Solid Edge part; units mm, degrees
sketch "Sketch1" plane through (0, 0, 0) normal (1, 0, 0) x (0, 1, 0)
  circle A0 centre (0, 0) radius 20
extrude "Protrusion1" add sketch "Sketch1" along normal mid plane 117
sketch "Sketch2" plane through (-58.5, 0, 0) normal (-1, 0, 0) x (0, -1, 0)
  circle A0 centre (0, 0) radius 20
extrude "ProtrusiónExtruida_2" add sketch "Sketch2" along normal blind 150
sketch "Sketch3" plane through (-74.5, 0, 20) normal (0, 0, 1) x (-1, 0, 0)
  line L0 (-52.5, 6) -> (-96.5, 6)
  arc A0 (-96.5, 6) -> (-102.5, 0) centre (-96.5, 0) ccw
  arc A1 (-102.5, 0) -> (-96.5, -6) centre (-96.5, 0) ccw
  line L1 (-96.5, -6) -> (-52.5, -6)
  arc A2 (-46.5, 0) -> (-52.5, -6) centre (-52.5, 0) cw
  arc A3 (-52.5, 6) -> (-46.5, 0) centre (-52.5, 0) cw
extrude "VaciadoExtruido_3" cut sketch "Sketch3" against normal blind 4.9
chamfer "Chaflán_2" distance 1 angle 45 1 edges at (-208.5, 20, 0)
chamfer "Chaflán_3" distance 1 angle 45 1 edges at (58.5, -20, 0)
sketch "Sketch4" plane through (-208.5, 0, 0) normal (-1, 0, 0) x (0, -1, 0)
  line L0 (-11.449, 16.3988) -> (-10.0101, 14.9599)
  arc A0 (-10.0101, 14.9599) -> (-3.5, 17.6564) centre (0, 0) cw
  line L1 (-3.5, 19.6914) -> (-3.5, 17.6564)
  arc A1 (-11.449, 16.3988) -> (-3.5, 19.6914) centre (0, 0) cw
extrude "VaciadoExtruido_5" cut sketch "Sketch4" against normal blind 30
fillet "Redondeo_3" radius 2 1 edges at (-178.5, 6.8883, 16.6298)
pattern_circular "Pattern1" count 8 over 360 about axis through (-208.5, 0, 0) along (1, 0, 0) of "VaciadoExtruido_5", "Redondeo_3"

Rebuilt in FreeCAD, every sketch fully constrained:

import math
import FreeCAD as App
import Part
import Sketcher
from FreeCAD import Vector
Q = App.Units.Quantity


def edges_at(feature, points):
    """Names of the edges that pass closest to the given points."""
    edges = feature.Shape.Edges
    near = lambda p: min(range(len(edges)), key=lambda i: edges[i].distToShape(Part.Vertex(*p))[0])
    return sorted({f"Edge{near(p) + 1}" for p in points})

doc = App.newDocument("Part")
body = doc.addObject("PartDesign::Body", "Body")

# Sketch on YZ plane
sketch1 = body.newObject("Sketcher::SketchObject", "Sketch")
sketch1.AttachmentSupport = (doc.getObject("YZ_Plane"), [""])
sketch1.MapMode = "FlatFace"
sketch1.addGeometry(Part.Circle(Vector(0, 0, 0), Vector(0, 0, 1), 20), False)
sketch1.addConstraint([
    Sketcher.Constraint("Coincident", 0, 3, -1, 1),
    Sketcher.Constraint("Diameter", 0, 40.0),
])
pad1 = body.newObject("PartDesign::Pad", "Pad")
pad1.Profile = sketch1
pad1.Length = 117
pad1.Midplane = True

# Sketch on YZ plane
sketch2 = body.newObject("Sketcher::SketchObject", "Sketch001")
sketch2.AttachmentSupport = (doc.getObject("YZ_Plane"), [""])
sketch2.MapMode = "FlatFace"
sketch2.AttachmentOffset = App.Placement(Vector(0, 0, -58.5), App.Rotation())
sketch2.addGeometry(Part.Circle(Vector(0, 0, 0), Vector(0, 0, 1), 20), False)
sketch2.addConstraint([
    Sketcher.Constraint("Coincident", 0, 3, -1, 1),
    Sketcher.Constraint("Diameter", 0, 40.0),
])
pad2 = body.newObject("PartDesign::Pad", "Pad001")
pad2.Profile = sketch2
pad2.Length = 150
pad2.Reversed = True

# Sketch on XY plane
sketch3 = body.newObject("Sketcher::SketchObject", "Sketch002")
sketch3.AttachmentSupport = (doc.getObject("XY_Plane"), [""])
sketch3.MapMode = "FlatFace"
sketch3.AttachmentOffset = App.Placement(Vector(0, 0, 20), App.Rotation())
sketch3.addGeometry([
    Part.ArcOfCircle(Part.Circle(Vector(-22, 0, 0), Vector(0, 0, 1), 6), math.radians(90), math.radians(270)),
    Part.LineSegment(Vector(-22, -6, 0), Vector(22, -6, 0)),
    Part.ArcOfCircle(Part.Circle(Vector(22, 0, 0), Vector(0, 0, 1), 6), math.radians(-90), math.radians(90)),
    Part.LineSegment(Vector(22, 6, 0), Vector(-22, 6, 0)),
], False)
sketch3.addConstraint([
    Sketcher.Constraint("Tangent", 0, 2, 1, 1),
    Sketcher.Constraint("Tangent", 1, 2, 2, 1),
    Sketcher.Constraint("Tangent", 2, 2, 3, 1),
    Sketcher.Constraint("Tangent", 3, 2, 0, 1),
    Sketcher.Constraint("Horizontal", 1),
    Sketcher.Constraint("Horizontal", 3),
    Sketcher.Constraint("Symmetric", 0, 3, 2, 3, -1, 1),
    Sketcher.Constraint("Radius", 0, 6.0),
    Sketcher.Constraint("DistanceX", 1, 1, 1, 2, 44.0),
])
pocket1 = body.newObject("PartDesign::Pocket", "Pocket")
pocket1.Profile = sketch3
pocket1.Length = 4.9
doc.recompute()

chamfer = body.newObject("PartDesign::Chamfer", "Chamfer")
chamfer.Base = (pocket1, edges_at(pocket1, [(-208.5, 20, 0)]))
chamfer.Size = 1
doc.recompute()

chamfer2 = body.newObject("PartDesign::Chamfer", "Chamfer001")
chamfer2.Base = (chamfer, edges_at(chamfer, [(58.5, -20, 0)]))
chamfer2.Size = 1

# Sketch on YZ plane
sketch4 = body.newObject("Sketcher::SketchObject", "Sketch003")
sketch4.AttachmentSupport = (doc.getObject("YZ_Plane"), [""])
sketch4.MapMode = "FlatFace"
sketch4.AttachmentOffset = App.Placement(Vector(0, 0, -208.5), App.Rotation())
sketch4.addGeometry([
    Part.ArcOfCircle(Part.Circle(Vector(0, 0, 0), Vector(0, 0, 1), 20), math.radians(55), math.radians(80)),
    Part.LineSegment(Vector(11.4, 16.4, 0), Vector(10, 15, 0)),
    Part.ArcOfCircle(Part.Circle(Vector(0, 0, 0), Vector(0, 0, 1), 18), math.radians(56), math.radians(79)),
    Part.LineSegment(Vector(3.5, 17.7, 0), Vector(3.5, 19.7, 0)),
], False)
sketch4.addConstraint([
    Sketcher.Constraint("Coincident", 0, 1, 1, 1),
    Sketcher.Constraint("Coincident", 1, 2, 2, 1),
    Sketcher.Constraint("Coincident", 2, 2, 3, 1),
    Sketcher.Constraint("Coincident", 3, 2, 0, 2),
    Sketcher.Constraint("Vertical", 3),
    Sketcher.Constraint("Coincident", 0, 3, -1, 1),
    Sketcher.Constraint("Radius", 0, 20.0),
    Sketcher.Constraint("Angle", 1, Q("-135 deg")),
    Sketcher.Constraint("DistanceX", -1, 1, 2, 2, 3.5),
    Sketcher.Constraint("Radius", 2, 17.9984),
    Sketcher.Constraint("DistanceY", 3, 1, 3, 2, 2.035),
    Sketcher.Constraint("DistanceX", -1, 1, 1, 2, 10.01),
    Sketcher.Constraint("DistanceY", -1, 1, 1, 2, 14.96),
])
pocket2 = body.newObject("PartDesign::Pocket", "Pocket001")
pocket2.Profile = sketch4
pocket2.Length = 30
pocket2.Reversed = True
doc.recompute()

fillet = body.newObject("PartDesign::Fillet", "Fillet")
fillet.Base = (pocket2, edges_at(pocket2, [(-178.5, 6.888, 16.63)]))
fillet.Radius = 2
doc.recompute()

polarpattern = body.newObject("PartDesign::PolarPattern", "PolarPattern")
polarpattern.Originals = [pocket2, fillet]
polarpattern.Axis = (doc.getObject("X_Axis"), [""])
polarpattern.Angle = 360
polarpattern.Occurrences = 8
body.Tip = polarpattern

doc.recompute()
